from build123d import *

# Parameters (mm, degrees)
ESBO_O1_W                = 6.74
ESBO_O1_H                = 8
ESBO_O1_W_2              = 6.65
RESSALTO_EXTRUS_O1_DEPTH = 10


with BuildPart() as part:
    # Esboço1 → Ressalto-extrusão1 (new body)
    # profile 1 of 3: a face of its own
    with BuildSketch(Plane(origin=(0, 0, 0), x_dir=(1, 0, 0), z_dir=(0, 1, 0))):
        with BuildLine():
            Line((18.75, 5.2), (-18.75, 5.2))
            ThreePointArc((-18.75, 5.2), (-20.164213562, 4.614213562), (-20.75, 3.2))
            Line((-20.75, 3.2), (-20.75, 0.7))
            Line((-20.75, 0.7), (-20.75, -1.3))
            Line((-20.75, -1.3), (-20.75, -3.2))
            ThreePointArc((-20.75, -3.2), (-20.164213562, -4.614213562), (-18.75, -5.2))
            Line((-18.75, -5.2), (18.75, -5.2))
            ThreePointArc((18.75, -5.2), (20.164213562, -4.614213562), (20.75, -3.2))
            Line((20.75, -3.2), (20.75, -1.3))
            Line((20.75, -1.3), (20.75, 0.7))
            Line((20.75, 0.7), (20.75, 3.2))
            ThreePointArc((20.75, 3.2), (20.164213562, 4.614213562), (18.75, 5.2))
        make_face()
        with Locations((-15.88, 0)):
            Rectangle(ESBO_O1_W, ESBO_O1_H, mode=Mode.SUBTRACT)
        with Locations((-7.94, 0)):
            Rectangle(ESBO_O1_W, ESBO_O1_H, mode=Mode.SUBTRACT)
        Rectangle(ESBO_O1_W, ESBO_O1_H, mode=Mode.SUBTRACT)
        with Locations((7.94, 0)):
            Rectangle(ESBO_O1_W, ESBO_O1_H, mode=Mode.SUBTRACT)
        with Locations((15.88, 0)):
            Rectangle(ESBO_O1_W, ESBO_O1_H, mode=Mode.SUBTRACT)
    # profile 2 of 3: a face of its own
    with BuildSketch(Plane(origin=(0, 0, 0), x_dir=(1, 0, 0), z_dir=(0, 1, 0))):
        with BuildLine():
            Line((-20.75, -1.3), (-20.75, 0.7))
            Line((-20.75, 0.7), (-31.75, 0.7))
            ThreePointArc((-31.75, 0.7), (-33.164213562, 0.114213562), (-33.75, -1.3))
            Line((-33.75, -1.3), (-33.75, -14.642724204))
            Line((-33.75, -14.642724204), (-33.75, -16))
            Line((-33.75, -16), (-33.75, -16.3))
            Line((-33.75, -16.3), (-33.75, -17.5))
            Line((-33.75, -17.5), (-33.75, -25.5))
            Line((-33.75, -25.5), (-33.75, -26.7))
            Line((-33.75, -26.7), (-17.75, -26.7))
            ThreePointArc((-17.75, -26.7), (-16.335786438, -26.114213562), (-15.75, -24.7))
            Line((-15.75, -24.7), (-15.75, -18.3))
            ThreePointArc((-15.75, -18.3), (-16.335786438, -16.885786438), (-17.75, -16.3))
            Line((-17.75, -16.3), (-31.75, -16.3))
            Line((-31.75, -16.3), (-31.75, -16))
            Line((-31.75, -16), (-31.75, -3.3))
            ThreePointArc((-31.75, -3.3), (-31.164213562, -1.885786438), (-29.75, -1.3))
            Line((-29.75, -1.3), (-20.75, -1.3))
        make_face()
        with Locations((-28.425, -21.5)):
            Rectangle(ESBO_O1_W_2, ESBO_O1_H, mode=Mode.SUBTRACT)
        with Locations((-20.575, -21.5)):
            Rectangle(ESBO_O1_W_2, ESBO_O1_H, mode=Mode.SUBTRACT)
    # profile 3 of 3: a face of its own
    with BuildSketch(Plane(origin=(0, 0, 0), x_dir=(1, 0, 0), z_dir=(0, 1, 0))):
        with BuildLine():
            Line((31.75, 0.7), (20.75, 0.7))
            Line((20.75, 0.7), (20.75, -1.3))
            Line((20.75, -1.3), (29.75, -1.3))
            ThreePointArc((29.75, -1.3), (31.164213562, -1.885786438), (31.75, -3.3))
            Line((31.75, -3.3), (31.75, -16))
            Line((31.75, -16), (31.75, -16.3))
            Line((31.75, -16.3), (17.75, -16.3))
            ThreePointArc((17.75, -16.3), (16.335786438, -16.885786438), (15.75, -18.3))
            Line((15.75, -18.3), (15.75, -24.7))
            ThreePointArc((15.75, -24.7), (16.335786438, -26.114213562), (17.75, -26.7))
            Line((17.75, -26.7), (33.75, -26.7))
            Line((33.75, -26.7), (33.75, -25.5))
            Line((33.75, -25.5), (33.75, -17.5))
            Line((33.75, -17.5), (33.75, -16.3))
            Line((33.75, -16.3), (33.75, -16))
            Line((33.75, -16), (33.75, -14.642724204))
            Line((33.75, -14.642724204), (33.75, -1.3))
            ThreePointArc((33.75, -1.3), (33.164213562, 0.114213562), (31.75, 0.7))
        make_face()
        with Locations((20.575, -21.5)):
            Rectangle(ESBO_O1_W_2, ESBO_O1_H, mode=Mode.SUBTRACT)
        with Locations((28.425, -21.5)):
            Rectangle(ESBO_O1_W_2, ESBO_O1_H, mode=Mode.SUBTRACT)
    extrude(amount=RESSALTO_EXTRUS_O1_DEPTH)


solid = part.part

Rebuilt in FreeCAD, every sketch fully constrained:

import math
import FreeCAD as App
import Part
import Sketcher

V = App.Vector

doc = App.newDocument("Part")
params = doc.addObject("Spreadsheet::Sheet", "Params")
for row, (alias, value) in enumerate([
    ("sketch1_radius", "2 mm"),
    ("sketch1_width", "11 mm"),
    ("sketch1_width2", "16 mm"),
    ("sketch1_height", "13 mm"),
    ("sketch1_height2", "8 mm"),
    ("pad1_length", "10 mm"),
], start=1):
    params.set(f"A{row}", alias)
    params.set(f"B{row}", "=" + value)
    params.setAlias(f"B{row}", alias)

body = doc.addObject("PartDesign::Body", "Body")

# Sketch on XZ plane
sketch1 = body.newObject("Sketcher::SketchObject", "Sketch")
sketch1.AttachmentSupport = (doc.getObject("XZ_Plane"), [""])
sketch1.MapMode = "FlatFace"
sketch1.addGeometry(Part.LineSegment(V(18.8, -5.2, 0), V(-18.8, -5.2, 0)), False)
sketch1.addGeometry(Part.ArcOfCircle(Part.Circle(V(-18.7, -3.2, 0), V(0, 0, 1), 2), math.radians(-180), math.radians(-90)), False)
sketch1.addGeometry(Part.LineSegment(V(-20.8, -3.2, 0), V(-20.8, -0.7, 0)), False)
sketch1.addGeometry(Part.LineSegment(V(-20.8, -0.7, 0), V(-31.8, -0.7, 0)), False)
sketch1.addGeometry(Part.ArcOfCircle(Part.Circle(V(-31.7, 1.3, 0), V(0, 0, 1), 2), math.radians(-180), math.radians(-90)), False)
sketch1.addGeometry(Part.LineSegment(V(-33.8, 1.3, 0), V(-33.8, 26.7, 0)), False)
sketch1.addGeometry(Part.LineSegment(V(-33.8, 26.7, 0), V(-17.8, 26.7, 0)), False)
sketch1.addGeometry(Part.ArcOfCircle(Part.Circle(V(-17.8, 24.7, 0), V(0, 0, 1), 2), math.radians(0), math.radians(90)), False)
sketch1.addGeometry(Part.LineSegment(V(-15.8, 24.7, 0), V(-15.8, 18.3, 0)), False)
sketch1.addGeometry(Part.ArcOfCircle(Part.Circle(V(-17.8, 18.3, 0), V(0, 0, 1), 2), math.radians(-90), math.radians(0)), False)
sketch1.addGeometry(Part.LineSegment(V(-17.8, 16.3, 0), V(-31.8, 16.3, 0)), False)
sketch1.addGeometry(Part.LineSegment(V(-31.8, 16.3, 0), V(-31.8, 3.3, 0)), False)
sketch1.addGeometry(Part.ArcOfCircle(Part.Circle(V(-29.7, 3.3, 0), V(0, 0, 1), 2), math.radians(-180), math.radians(-90)), False)
sketch1.addGeometry(Part.LineSegment(V(-29.8, 1.3, 0), V(-20.8, 1.3, 0)), False)
sketch1.addGeometry(Part.LineSegment(V(-20.8, 1.3, 0), V(-20.8, 3.2, 0)), False)
sketch1.addGeometry(Part.ArcOfCircle(Part.Circle(V(-18.7, 3.2, 0), V(0, 0, 1), 2), math.radians(90), math.radians(180)), False)
sketch1.addGeometry(Part.LineSegment(V(-18.8, 5.2, 0), V(18.8, 5.2, 0)), False)
sketch1.addGeometry(Part.ArcOfCircle(Part.Circle(V(18.7, 3.2, 0), V(0, 0, 1), 2), math.radians(0), math.radians(90)), False)
sketch1.addGeometry(Part.LineSegment(V(20.8, 3.2, 0), V(20.8, 1.3, 0)), False)
sketch1.addGeometry(Part.LineSegment(V(20.8, 1.3, 0), V(29.8, 1.3, 0)), False)
sketch1.addGeometry(Part.ArcOfCircle(Part.Circle(V(29.7, 3.3, 0), V(0, 0, 1), 2), math.radians(-90), math.radians(0)), False)
sketch1.addGeometry(Part.LineSegment(V(31.8, 3.3, 0), V(31.8, 16.3, 0)), False)
sketch1.addGeometry(Part.LineSegment(V(31.8, 16.3, 0), V(17.8, 16.3, 0)), False)
sketch1.addGeometry(Part.ArcOfCircle(Part.Circle(V(17.8, 18.3, 0), V(0, 0, 1), 2), math.radians(-180), math.radians(-90)), False)
sketch1.addGeometry(Part.LineSegment(V(15.8, 18.3, 0), V(15.8, 24.7, 0)), False)
sketch1.addGeometry(Part.ArcOfCircle(Part.Circle(V(17.8, 24.7, 0), V(0, 0, 1), 2), math.radians(90), math.radians(180)), False)
sketch1.addGeometry(Part.LineSegment(V(17.8, 26.7, 0), V(33.8, 26.7, 0)), False)
sketch1.addGeometry(Part.LineSegment(V(33.8, 26.7, 0), V(33.8, 1.3, 0)), False)
sketch1.addGeometry(Part.ArcOfCircle(Part.Circle(V(31.7, 1.3, 0), V(0, 0, 1), 2), math.radians(-90), math.radians(0)), False)
sketch1.addGeometry(Part.LineSegment(V(31.8, -0.7, 0), V(20.8, -0.7, 0)), False)
sketch1.addGeometry(Part.LineSegment(V(20.8, -0.7, 0), V(20.8, -3.2, 0)), False)
sketch1.addGeometry(Part.ArcOfCircle(Part.Circle(V(18.7, -3.2, 0), V(0, 0, 1), 2), math.radians(-90), math.radians(0)), False)
sketch1.addGeometry(Part.LineSegment(V(-12.5, 4, 0), V(-19.2, 4, 0)), False)
sketch1.addGeometry(Part.LineSegment(V(-19.2, 4, 0), V(-19.2, -4, 0)), False)
sketch1.addGeometry(Part.LineSegment(V(-19.2, -4, 0), V(-12.5, -4, 0)), False)
sketch1.addGeometry(Part.LineSegment(V(-12.5, -4, 0), V(-12.5, 4, 0)), False)
sketch1.addGeometry(Part.LineSegment(V(-4.6, 4, 0), V(-11.3, 4, 0)), False)
sketch1.addGeometry(Part.LineSegment(V(-11.3, 4, 0), V(-11.3, -4, 0)), False)
sketch1.addGeometry(Part.LineSegment(V(-11.3, -4, 0), V(-4.6, -4, 0)), False)
sketch1.addGeometry(Part.LineSegment(V(-4.6, -4, 0), V(-4.6, 4, 0)), False)
sketch1.addGeometry(Part.LineSegment(V(3.4, 4, 0), V(-3.4, 4, 0)), False)
sketch1.addGeometry(Part.LineSegment(V(-3.4, 4, 0), V(-3.4, -4, 0)), False)
sketch1.addGeometry(Part.LineSegment(V(-3.4, -4, 0), V(3.4, -4, 0)), False)
sketch1.addGeometry(Part.LineSegment(V(3.4, -4, 0), V(3.4, 4, 0)), False)
sketch1.addGeometry(Part.LineSegment(V(11.3, 4, 0), V(4.6, 4, 0)), False)
sketch1.addGeometry(Part.LineSegment(V(4.6, 4, 0), V(4.6, -4, 0)), False)
sketch1.addGeometry(Part.LineSegment(V(4.6, -4, 0), V(11.3, -4, 0)), False)
sketch1.addGeometry(Part.LineSegment(V(11.3, -4, 0), V(11.3, 4, 0)), False)
sketch1.addGeometry(Part.LineSegment(V(19.2, 4, 0), V(12.5, 4, 0)), False)
sketch1.addGeometry(Part.LineSegment(V(12.5, 4, 0), V(12.5, -4, 0)), False)
sketch1.addGeometry(Part.LineSegment(V(12.5, -4, 0), V(19.2, -4, 0)), False)
sketch1.addGeometry(Part.LineSegment(V(19.2, -4, 0), V(19.2, 4, 0)), False)
sketch1.addGeometry(Part.LineSegment(V(25.1, 25.5, 0), V(25.1, 17.5, 0)), False)
sketch1.addGeometry(Part.LineSegment(V(25.1, 17.5, 0), V(31.8, 17.5, 0)), False)
sketch1.addGeometry(Part.LineSegment(V(31.8, 17.5, 0), V(31.8, 25.5, 0)), False)
sketch1.addGeometry(Part.LineSegment(V(31.8, 25.5, 0), V(25.1, 25.5, 0)), False)
sketch1.addGeometry(Part.LineSegment(V(23.9, 25.5, 0), V(17.2, 25.5, 0)), False)
sketch1.addGeometry(Part.LineSegment(V(17.2, 25.5, 0), V(17.2, 17.5, 0)), False)
sketch1.addGeometry(Part.LineSegment(V(17.2, 17.5, 0), V(23.9, 17.5, 0)), False)
sketch1.addGeometry(Part.LineSegment(V(23.9, 17.5, 0), V(23.9, 25.5, 0)), False)
sketch1.addGeometry(Part.LineSegment(V(-23.9, 25.5, 0), V(-23.9, 17.5, 0)), False)
sketch1.addGeometry(Part.LineSegment(V(-23.9, 17.5, 0), V(-17.2, 17.5, 0)), False)
sketch1.addGeometry(Part.LineSegment(V(-17.2, 17.5, 0), V(-17.2, 25.5, 0)), False)
sketch1.addGeometry(Part.LineSegment(V(-17.2, 25.5, 0), V(-23.9, 25.5, 0)), False)
sketch1.addGeometry(Part.LineSegment(V(-25.1, 25.5, 0), V(-31.8, 25.5, 0)), False)
sketch1.addGeometry(Part.LineSegment(V(-31.8, 25.5, 0), V(-31.8, 17.5, 0)), False)
sketch1.addGeometry(Part.LineSegment(V(-31.8, 17.5, 0), V(-25.1, 17.5, 0)), False)
sketch1.addGeometry(Part.LineSegment(V(-25.1, 17.5, 0), V(-25.1, 25.5, 0)), False)
sketch1.addConstraint(Sketcher.Constraint("Tangent", 0, 2, 1, 2))
sketch1.addConstraint(Sketcher.Constraint("Tangent", 1, 1, 2, 1))
sketch1.addConstraint(Sketcher.Constraint("Coincident", 2, 2, 3, 1))
sketch1.addConstraint(Sketcher.Constraint("Tangent", 3, 2, 4, 2))
sketch1.addConstraint(Sketcher.Constraint("Tangent", 4, 1, 5, 1))
sketch1.addConstraint(Sketcher.Constraint("Coincident", 5, 2, 6, 1))
sketch1.addConstraint(Sketcher.Constraint("Tangent", 6, 2, 7, 2))
sketch1.addConstraint(Sketcher.Constraint("Tangent", 7, 1, 8, 1))
sketch1.addConstraint(Sketcher.Constraint("Tangent", 8, 2, 9, 2))
sketch1.addConstraint(Sketcher.Constraint("Tangent", 9, 1, 10, 1))
sketch1.addConstraint(Sketcher.Constraint("Coincident", 10, 2, 11, 1))
sketch1.addConstraint(Sketcher.Constraint("Tangent", 11, 2, 12, 1))
sketch1.addConstraint(Sketcher.Constraint("Tangent", 12, 2, 13, 1))
sketch1.addConstraint(Sketcher.Constraint("Coincident", 13, 2, 14, 1))
sketch1.addConstraint(Sketcher.Constraint("Tangent", 14, 2, 15, 2))
sketch1.addConstraint(Sketcher.Constraint("Tangent", 15, 1, 16, 1))
sketch1.addConstraint(Sketcher.Constraint("Tangent", 16, 2, 17, 2))
sketch1.addConstraint(Sketcher.Constraint("Tangent", 17, 1, 18, 1))
sketch1.addConstraint(Sketcher.Constraint("Coincident", 18, 2, 19, 1))
sketch1.addConstraint(Sketcher.Constraint("Tangent", 19, 2, 20, 1))
sketch1.addConstraint(Sketcher.Constraint("Tangent", 20, 2, 21, 1))
sketch1.addConstraint(Sketcher.Constraint("Coincident", 21, 2, 22, 1))
sketch1.addConstraint(Sketcher.Constraint("Tangent", 22, 2, 23, 2))
sketch1.addConstraint(Sketcher.Constraint("Tangent", 23, 1, 24, 1))
sketch1.addConstraint(Sketcher.Constraint("Tangent", 24, 2, 25, 2))
sketch1.addConstraint(Sketcher.Constraint("Tangent", 25, 1, 26, 1))
sketch1.addConstraint(Sketcher.Constraint("Coincident", 26, 2, 27, 1))
sketch1.addConstraint(Sketcher.Constraint("Tangent", 27, 2, 28, 2))
sketch1.addConstraint(Sketcher.Constraint("Tangent", 28, 1, 29, 1))
sketch1.addConstraint(Sketcher.Constraint("Coincident", 29, 2, 30, 1))
sketch1.addConstraint(Sketcher.Constraint("Tangent", 30, 2, 31, 2))
sketch1.addConstraint(Sketcher.Constraint("Tangent", 31, 1, 0, 1))
sketch1.addConstraint(Sketcher.Constraint("Coincident", 32, 2, 33, 1))
sketch1.addConstraint(Sketcher.Constraint("Coincident", 33, 2, 34, 1))
sketch1.addConstraint(Sketcher.Constraint("Coincident", 34, 2, 35, 1))
sketch1.addConstraint(Sketcher.Constraint("Coincident", 35, 2, 32, 1))
sketch1.addConstraint(Sketcher.Constraint("Coincident", 36, 2, 37, 1))
sketch1.addConstraint(Sketcher.Constraint("Coincident", 37, 2, 38, 1))
sketch1.addConstraint(Sketcher.Constraint("Coincident", 38, 2, 39, 1))
sketch1.addConstraint(Sketcher.Constraint("Coincident", 39, 2, 36, 1))
sketch1.addConstraint(Sketcher.Constraint("Coincident", 40, 2, 41, 1))
sketch1.addConstraint(Sketcher.Constraint("Coincident", 41, 2, 42, 1))
sketch1.addConstraint(Sketcher.Constraint("Coincident", 42, 2, 43, 1))
sketch1.addConstraint(Sketcher.Constraint("Coincident", 43, 2, 40, 1))
sketch1.addConstraint(Sketcher.Constraint("Coincident", 44, 2, 45, 1))
sketch1.addConstraint(Sketcher.Constraint("Coincident", 45, 2, 46, 1))
sketch1.addConstraint(Sketcher.Constraint("Coincident", 46, 2, 47, 1))
sketch1.addConstraint(Sketcher.Constraint("Coincident", 47, 2, 44, 1))
sketch1.addConstraint(Sketcher.Constraint("Coincident", 48, 2, 49, 1))
sketch1.addConstraint(Sketcher.Constraint("Coincident", 49, 2, 50, 1))
sketch1.addConstraint(Sketcher.Constraint("Coincident", 50, 2, 51, 1))
sketch1.addConstraint(Sketcher.Constraint("Coincident", 51, 2, 48, 1))
sketch1.addConstraint(Sketcher.Constraint("Coincident", 52, 2, 53, 1))
sketch1.addConstraint(Sketcher.Constraint("Coincident", 53, 2, 54, 1))
sketch1.addConstraint(Sketcher.Constraint("Coincident", 54, 2, 55, 1))
sketch1.addConstraint(Sketcher.Constraint("Coincident", 55, 2, 52, 1))
sketch1.addConstraint(Sketcher.Constraint("Coincident", 56, 2, 57, 1))
sketch1.addConstraint(Sketcher.Constraint("Coincident", 57, 2, 58, 1))
sketch1.addConstraint(Sketcher.Constraint("Coincident", 58, 2, 59, 1))
sketch1.addConstraint(Sketcher.Constraint("Coincident", 59, 2, 56, 1))
sketch1.addConstraint(Sketcher.Constraint("Coincident", 60, 2, 61, 1))
sketch1.addConstraint(Sketcher.Constraint("Coincident", 61, 2, 62, 1))
sketch1.addConstraint(Sketcher.Constraint("Coincident", 62, 2, 63, 1))
sketch1.addConstraint(Sketcher.Constraint("Coincident", 63, 2, 60, 1))
sketch1.addConstraint(Sketcher.Constraint("Coincident", 64, 2, 65, 1))
sketch1.addConstraint(Sketcher.Constraint("Coincident", 65, 2, 66, 1))
sketch1.addConstraint(Sketcher.Constraint("Coincident", 66, 2, 67, 1))
sketch1.addConstraint(Sketcher.Constraint("Coincident", 67, 2, 64, 1))
sketch1.addConstraint(Sketcher.Constraint("Horizontal", 0))
sketch1.addConstraint(Sketcher.Constraint("Vertical", 2))
sketch1.addConstraint(Sketcher.Constraint("Horizontal", 3))
sketch1.addConstraint(Sketcher.Constraint("Vertical", 5))
sketch1.addConstraint(Sketcher.Constraint("Horizontal", 6))
sketch1.addConstraint(Sketcher.Constraint("Vertical", 8))
sketch1.addConstraint(Sketcher.Constraint("Horizontal", 10))
sketch1.addConstraint(Sketcher.Constraint("Vertical", 11))
sketch1.addConstraint(Sketcher.Constraint("Horizontal", 13))
sketch1.addConstraint(Sketcher.Constraint("Vertical", 14))
sketch1.addConstraint(Sketcher.Constraint("Horizontal", 16))
sketch1.addConstraint(Sketcher.Constraint("Vertical", 18))
sketch1.addConstraint(Sketcher.Constraint("Horizontal", 19))
sketch1.addConstraint(Sketcher.Constraint("Vertical", 21))
sketch1.addConstraint(Sketcher.Constraint("Horizontal", 22))
sketch1.addConstraint(Sketcher.Constraint("Vertical", 24))
sketch1.addConstraint(Sketcher.Constraint("Horizontal", 26))
sketch1.addConstraint(Sketcher.Constraint("Vertical", 27))
sketch1.addConstraint(Sketcher.Constraint("Horizontal", 29))
sketch1.addConstraint(Sketcher.Constraint("Vertical", 30))
sketch1.addConstraint(Sketcher.Constraint("Horizontal", 32))
sketch1.addConstraint(Sketcher.Constraint("Vertical", 33))
sketch1.addConstraint(Sketcher.Constraint("Horizontal", 34))
sketch1.addConstraint(Sketcher.Constraint("Vertical", 35))
sketch1.addConstraint(Sketcher.Constraint("Horizontal", 36))
sketch1.addConstraint(Sketcher.Constraint("Vertical", 37))
sketch1.addConstraint(Sketcher.Constraint("Horizontal", 38))
sketch1.addConstraint(Sketcher.Constraint("Vertical", 39))
sketch1.addConstraint(Sketcher.Constraint("Horizontal", 40))
sketch1.addConstraint(Sketcher.Constraint("Vertical", 41))
sketch1.addConstraint(Sketcher.Constraint("Horizontal", 42))
sketch1.addConstraint(Sketcher.Constraint("Vertical", 43))
sketch1.addConstraint(Sketcher.Constraint("Horizontal", 44))
sketch1.addConstraint(Sketcher.Constraint("Vertical", 45))
sketch1.addConstraint(Sketcher.Constraint("Horizontal", 46))
sketch1.addConstraint(Sketcher.Constraint("Vertical", 47))
sketch1.addConstraint(Sketcher.Constraint("Horizontal", 48))
sketch1.addConstraint(Sketcher.Constraint("Vertical", 49))
sketch1.addConstraint(Sketcher.Constraint("Horizontal", 50))
sketch1.addConstraint(Sketcher.Constraint("Vertical", 51))
sketch1.addConstraint(Sketcher.Constraint("Vertical", 52))
sketch1.addConstraint(Sketcher.Constraint("Horizontal", 53))
sketch1.addConstraint(Sketcher.Constraint("Vertical", 54))
sketch1.addConstraint(Sketcher.Constraint("Horizontal", 55))
sketch1.addConstraint(Sketcher.Constraint("Horizontal", 56))
sketch1.addConstraint(Sketcher.Constraint("Vertical", 57))
sketch1.addConstraint(Sketcher.Constraint("Horizontal", 58))
sketch1.addConstraint(Sketcher.Constraint("Vertical", 59))
sketch1.addConstraint(Sketcher.Constraint("Vertical", 60))
sketch1.addConstraint(Sketcher.Constraint("Horizontal", 61))
sketch1.addConstraint(Sketcher.Constraint("Vertical", 62))
sketch1.addConstraint(Sketcher.Constraint("Horizontal", 63))
sketch1.addConstraint(Sketcher.Constraint("Horizontal", 64))
sketch1.addConstraint(Sketcher.Constraint("Vertical", 65))
sketch1.addConstraint(Sketcher.Constraint("Horizontal", 66))
sketch1.addConstraint(Sketcher.Constraint("Vertical", 67))
sketch1.addConstraint(Sketcher.Constraint("Equal", 1, 4))
sketch1.addConstraint(Sketcher.Constraint("Equal", 4, 7))
sketch1.addConstraint(Sketcher.Constraint("Equal", 7, 9))
sketch1.addConstraint(Sketcher.Constraint("Equal", 9, 12))
sketch1.addConstraint(Sketcher.Constraint("Equal", 12, 15))
sketch1.addConstraint(Sketcher.Constraint("Equal", 15, 17))
sketch1.addConstraint(Sketcher.Constraint("Equal", 17, 20))
sketch1.addConstraint(Sketcher.Constraint("Equal", 20, 23))
sketch1.addConstraint(Sketcher.Constraint("Equal", 23, 25))
sketch1.addConstraint(Sketcher.Constraint("Equal", 25, 28))
sketch1.addConstraint(Sketcher.Constraint("Equal", 28, 31))
sketch1.addConstraint(Sketcher.Constraint("Symmetric", 1, 3, 17, 3, -1, 1))
sketch1.addConstraint(Sketcher.Constraint("Symmetric", 40, 2, 42, 2, -1, 1))
sketch1.addConstraint(Sketcher.Constraint("Symmetric", 38, 2, 44, 2, -1, 1))
sketch1.addConstraint(Sketcher.Constraint("Symmetric", 36, 2, 46, 2, -1, 1))
sketch1.addConstraint(Sketcher.Constraint("Symmetric", 34, 2, 48, 2, -1, 1))
sketch1.addConstraint(Sketcher.Constraint("Symmetric", 32, 2, 50, 2, -1, 1))
sketch1.addConstraint(Sketcher.Constraint("Symmetric", 12, 3, 20, 3, -2))
sketch1.addConstraint(Sketcher.Constraint("Symmetric", 9, 3, 23, 3, -2))
sketch1.addConstraint(Sketcher.Constraint("Symmetric", 4, 3, 28, 3, -2))
sketch1.addConstraint(Sketcher.Constraint("Symmetric", 58, 2, 60, 2, -2))
sketch1.addConstraint(Sketcher.Constraint("Symmetric", 56, 2, 62, 2, -2))
sketch1.addConstraint(Sketcher.Constraint("Symmetric", 54, 2, 64, 2, -2))
sketch1.addConstraint(Sketcher.Constraint("Symmetric", 52, 2, 66, 2, -2))
sketch1.addConstraint(Sketcher.Constraint("Horizontal", 7, 3, 25, 3))
sketch1.addConstraint(Sketcher.Constraint("Horizontal", 4, 1, 12, 2))
sketch1.addConstraint(Sketcher.Constraint("Horizontal", 35, 2, 36, 2))
sketch1.addConstraint(Sketcher.Constraint("Horizontal", 34, 2, 37, 2))
sketch1.addConstraint(Sketcher.Constraint("Horizontal", 39, 2, 40, 2))
sketch1.addConstraint(Sketcher.Constraint("Horizontal", 38, 2, 41, 2))
sketch1.addConstraint(Sketcher.Constraint("Horizontal", 55, 2, 56, 2))
sketch1.addConstraint(Sketcher.Constraint("Horizontal", 53, 2, 57, 2))
sketch1.addConstraint(Sketcher.Constraint("Vertical", 1, 3, 15, 3))
sketch1.addConstraint(Sketcher.Constraint("Vertical", 17, 3, 31, 3))
sketch1.addConstraint(Sketcher.Constraint("Vertical", 3, 2, 10, 2))
sketch1.addConstraint(Sketcher.Constraint("Vertical", 28, 1, 53, 2))
sketch1.addConstraint(Sketcher.Constraint("Equal", 34, 36))
sketch1.addConstraint(Sketcher.Constraint("Equal", 38, 40))
sketch1.addConstraint(Sketcher.Constraint("Equal", 55, 56))
sketch1.addConstraint(Sketcher.Constraint("Equal", 51, 52))
sketch1.addConstraint(Sketcher.Constraint("Radius", 1, 2.0))
sketch1.addConstraint(Sketcher.Constraint("DistanceX", 3, 2, 3, 1, 11.0))
sketch1.addConstraint(Sketcher.Constraint("DistanceX", 6, 1, 6, 2, 16.0))
sketch1.addConstraint(Sketcher.Constraint("DistanceY", 11, 2, 11, 1, 13.0))
sketch1.addConstraint(Sketcher.Constraint("DistanceY", 33, 2, 33, 1, 8.0))
sketch1.addConstraint(Sketcher.Constraint("DistanceX", 0, 2, 0, 1, 37.5))
sketch1.addConstraint(Sketcher.Constraint("DistanceY", 2, 1, 2, 2, 2.5))
sketch1.addConstraint(Sketcher.Constraint("DistanceY", 5, 1, 5, 2, 25.4))
sketch1.addConstraint(Sketcher.Constraint("DistanceY", 14, 1, 14, 2, 1.9))
sketch1.addConstraint(Sketcher.Constraint("DistanceX", 32, 2, 32, 1, 6.74))
sketch1.addConstraint(Sketcher.Constraint("DistanceX", 53, 1, 53, 2, 6.65))
sketch1.addConstraint(Sketcher.Constraint("DistanceY", -1, 1, 52, 2, 17.5))
sketch1.addConstraint(Sketcher.Constraint("DistanceX", -1, 1, 58, 2, 23.9))
sketch1.addConstraint(Sketcher.Constraint("DistanceX", 32, 2, -1, 1, 19.25))
sketch1.addConstraint(Sketcher.Constraint("DistanceX", 36, 2, -1, 1, 11.31))
sketch1.setExpression("Constraints[164]", "Params.sketch1_radius")
sketch1.setExpression("Constraints[165]", "Params.sketch1_width")
sketch1.setExpression("Constraints[166]", "Params.sketch1_width2")
sketch1.setExpression("Constraints[167]", "Params.sketch1_height")
sketch1.setExpression("Constraints[168]", "Params.sketch1_height2")
pad1 = body.newObject("PartDesign::Pad", "Pad")
pad1.Profile = sketch1
pad1.setExpression("Length", "Params.pad1_length")
pad1.Reversed = True

doc.recompute()
